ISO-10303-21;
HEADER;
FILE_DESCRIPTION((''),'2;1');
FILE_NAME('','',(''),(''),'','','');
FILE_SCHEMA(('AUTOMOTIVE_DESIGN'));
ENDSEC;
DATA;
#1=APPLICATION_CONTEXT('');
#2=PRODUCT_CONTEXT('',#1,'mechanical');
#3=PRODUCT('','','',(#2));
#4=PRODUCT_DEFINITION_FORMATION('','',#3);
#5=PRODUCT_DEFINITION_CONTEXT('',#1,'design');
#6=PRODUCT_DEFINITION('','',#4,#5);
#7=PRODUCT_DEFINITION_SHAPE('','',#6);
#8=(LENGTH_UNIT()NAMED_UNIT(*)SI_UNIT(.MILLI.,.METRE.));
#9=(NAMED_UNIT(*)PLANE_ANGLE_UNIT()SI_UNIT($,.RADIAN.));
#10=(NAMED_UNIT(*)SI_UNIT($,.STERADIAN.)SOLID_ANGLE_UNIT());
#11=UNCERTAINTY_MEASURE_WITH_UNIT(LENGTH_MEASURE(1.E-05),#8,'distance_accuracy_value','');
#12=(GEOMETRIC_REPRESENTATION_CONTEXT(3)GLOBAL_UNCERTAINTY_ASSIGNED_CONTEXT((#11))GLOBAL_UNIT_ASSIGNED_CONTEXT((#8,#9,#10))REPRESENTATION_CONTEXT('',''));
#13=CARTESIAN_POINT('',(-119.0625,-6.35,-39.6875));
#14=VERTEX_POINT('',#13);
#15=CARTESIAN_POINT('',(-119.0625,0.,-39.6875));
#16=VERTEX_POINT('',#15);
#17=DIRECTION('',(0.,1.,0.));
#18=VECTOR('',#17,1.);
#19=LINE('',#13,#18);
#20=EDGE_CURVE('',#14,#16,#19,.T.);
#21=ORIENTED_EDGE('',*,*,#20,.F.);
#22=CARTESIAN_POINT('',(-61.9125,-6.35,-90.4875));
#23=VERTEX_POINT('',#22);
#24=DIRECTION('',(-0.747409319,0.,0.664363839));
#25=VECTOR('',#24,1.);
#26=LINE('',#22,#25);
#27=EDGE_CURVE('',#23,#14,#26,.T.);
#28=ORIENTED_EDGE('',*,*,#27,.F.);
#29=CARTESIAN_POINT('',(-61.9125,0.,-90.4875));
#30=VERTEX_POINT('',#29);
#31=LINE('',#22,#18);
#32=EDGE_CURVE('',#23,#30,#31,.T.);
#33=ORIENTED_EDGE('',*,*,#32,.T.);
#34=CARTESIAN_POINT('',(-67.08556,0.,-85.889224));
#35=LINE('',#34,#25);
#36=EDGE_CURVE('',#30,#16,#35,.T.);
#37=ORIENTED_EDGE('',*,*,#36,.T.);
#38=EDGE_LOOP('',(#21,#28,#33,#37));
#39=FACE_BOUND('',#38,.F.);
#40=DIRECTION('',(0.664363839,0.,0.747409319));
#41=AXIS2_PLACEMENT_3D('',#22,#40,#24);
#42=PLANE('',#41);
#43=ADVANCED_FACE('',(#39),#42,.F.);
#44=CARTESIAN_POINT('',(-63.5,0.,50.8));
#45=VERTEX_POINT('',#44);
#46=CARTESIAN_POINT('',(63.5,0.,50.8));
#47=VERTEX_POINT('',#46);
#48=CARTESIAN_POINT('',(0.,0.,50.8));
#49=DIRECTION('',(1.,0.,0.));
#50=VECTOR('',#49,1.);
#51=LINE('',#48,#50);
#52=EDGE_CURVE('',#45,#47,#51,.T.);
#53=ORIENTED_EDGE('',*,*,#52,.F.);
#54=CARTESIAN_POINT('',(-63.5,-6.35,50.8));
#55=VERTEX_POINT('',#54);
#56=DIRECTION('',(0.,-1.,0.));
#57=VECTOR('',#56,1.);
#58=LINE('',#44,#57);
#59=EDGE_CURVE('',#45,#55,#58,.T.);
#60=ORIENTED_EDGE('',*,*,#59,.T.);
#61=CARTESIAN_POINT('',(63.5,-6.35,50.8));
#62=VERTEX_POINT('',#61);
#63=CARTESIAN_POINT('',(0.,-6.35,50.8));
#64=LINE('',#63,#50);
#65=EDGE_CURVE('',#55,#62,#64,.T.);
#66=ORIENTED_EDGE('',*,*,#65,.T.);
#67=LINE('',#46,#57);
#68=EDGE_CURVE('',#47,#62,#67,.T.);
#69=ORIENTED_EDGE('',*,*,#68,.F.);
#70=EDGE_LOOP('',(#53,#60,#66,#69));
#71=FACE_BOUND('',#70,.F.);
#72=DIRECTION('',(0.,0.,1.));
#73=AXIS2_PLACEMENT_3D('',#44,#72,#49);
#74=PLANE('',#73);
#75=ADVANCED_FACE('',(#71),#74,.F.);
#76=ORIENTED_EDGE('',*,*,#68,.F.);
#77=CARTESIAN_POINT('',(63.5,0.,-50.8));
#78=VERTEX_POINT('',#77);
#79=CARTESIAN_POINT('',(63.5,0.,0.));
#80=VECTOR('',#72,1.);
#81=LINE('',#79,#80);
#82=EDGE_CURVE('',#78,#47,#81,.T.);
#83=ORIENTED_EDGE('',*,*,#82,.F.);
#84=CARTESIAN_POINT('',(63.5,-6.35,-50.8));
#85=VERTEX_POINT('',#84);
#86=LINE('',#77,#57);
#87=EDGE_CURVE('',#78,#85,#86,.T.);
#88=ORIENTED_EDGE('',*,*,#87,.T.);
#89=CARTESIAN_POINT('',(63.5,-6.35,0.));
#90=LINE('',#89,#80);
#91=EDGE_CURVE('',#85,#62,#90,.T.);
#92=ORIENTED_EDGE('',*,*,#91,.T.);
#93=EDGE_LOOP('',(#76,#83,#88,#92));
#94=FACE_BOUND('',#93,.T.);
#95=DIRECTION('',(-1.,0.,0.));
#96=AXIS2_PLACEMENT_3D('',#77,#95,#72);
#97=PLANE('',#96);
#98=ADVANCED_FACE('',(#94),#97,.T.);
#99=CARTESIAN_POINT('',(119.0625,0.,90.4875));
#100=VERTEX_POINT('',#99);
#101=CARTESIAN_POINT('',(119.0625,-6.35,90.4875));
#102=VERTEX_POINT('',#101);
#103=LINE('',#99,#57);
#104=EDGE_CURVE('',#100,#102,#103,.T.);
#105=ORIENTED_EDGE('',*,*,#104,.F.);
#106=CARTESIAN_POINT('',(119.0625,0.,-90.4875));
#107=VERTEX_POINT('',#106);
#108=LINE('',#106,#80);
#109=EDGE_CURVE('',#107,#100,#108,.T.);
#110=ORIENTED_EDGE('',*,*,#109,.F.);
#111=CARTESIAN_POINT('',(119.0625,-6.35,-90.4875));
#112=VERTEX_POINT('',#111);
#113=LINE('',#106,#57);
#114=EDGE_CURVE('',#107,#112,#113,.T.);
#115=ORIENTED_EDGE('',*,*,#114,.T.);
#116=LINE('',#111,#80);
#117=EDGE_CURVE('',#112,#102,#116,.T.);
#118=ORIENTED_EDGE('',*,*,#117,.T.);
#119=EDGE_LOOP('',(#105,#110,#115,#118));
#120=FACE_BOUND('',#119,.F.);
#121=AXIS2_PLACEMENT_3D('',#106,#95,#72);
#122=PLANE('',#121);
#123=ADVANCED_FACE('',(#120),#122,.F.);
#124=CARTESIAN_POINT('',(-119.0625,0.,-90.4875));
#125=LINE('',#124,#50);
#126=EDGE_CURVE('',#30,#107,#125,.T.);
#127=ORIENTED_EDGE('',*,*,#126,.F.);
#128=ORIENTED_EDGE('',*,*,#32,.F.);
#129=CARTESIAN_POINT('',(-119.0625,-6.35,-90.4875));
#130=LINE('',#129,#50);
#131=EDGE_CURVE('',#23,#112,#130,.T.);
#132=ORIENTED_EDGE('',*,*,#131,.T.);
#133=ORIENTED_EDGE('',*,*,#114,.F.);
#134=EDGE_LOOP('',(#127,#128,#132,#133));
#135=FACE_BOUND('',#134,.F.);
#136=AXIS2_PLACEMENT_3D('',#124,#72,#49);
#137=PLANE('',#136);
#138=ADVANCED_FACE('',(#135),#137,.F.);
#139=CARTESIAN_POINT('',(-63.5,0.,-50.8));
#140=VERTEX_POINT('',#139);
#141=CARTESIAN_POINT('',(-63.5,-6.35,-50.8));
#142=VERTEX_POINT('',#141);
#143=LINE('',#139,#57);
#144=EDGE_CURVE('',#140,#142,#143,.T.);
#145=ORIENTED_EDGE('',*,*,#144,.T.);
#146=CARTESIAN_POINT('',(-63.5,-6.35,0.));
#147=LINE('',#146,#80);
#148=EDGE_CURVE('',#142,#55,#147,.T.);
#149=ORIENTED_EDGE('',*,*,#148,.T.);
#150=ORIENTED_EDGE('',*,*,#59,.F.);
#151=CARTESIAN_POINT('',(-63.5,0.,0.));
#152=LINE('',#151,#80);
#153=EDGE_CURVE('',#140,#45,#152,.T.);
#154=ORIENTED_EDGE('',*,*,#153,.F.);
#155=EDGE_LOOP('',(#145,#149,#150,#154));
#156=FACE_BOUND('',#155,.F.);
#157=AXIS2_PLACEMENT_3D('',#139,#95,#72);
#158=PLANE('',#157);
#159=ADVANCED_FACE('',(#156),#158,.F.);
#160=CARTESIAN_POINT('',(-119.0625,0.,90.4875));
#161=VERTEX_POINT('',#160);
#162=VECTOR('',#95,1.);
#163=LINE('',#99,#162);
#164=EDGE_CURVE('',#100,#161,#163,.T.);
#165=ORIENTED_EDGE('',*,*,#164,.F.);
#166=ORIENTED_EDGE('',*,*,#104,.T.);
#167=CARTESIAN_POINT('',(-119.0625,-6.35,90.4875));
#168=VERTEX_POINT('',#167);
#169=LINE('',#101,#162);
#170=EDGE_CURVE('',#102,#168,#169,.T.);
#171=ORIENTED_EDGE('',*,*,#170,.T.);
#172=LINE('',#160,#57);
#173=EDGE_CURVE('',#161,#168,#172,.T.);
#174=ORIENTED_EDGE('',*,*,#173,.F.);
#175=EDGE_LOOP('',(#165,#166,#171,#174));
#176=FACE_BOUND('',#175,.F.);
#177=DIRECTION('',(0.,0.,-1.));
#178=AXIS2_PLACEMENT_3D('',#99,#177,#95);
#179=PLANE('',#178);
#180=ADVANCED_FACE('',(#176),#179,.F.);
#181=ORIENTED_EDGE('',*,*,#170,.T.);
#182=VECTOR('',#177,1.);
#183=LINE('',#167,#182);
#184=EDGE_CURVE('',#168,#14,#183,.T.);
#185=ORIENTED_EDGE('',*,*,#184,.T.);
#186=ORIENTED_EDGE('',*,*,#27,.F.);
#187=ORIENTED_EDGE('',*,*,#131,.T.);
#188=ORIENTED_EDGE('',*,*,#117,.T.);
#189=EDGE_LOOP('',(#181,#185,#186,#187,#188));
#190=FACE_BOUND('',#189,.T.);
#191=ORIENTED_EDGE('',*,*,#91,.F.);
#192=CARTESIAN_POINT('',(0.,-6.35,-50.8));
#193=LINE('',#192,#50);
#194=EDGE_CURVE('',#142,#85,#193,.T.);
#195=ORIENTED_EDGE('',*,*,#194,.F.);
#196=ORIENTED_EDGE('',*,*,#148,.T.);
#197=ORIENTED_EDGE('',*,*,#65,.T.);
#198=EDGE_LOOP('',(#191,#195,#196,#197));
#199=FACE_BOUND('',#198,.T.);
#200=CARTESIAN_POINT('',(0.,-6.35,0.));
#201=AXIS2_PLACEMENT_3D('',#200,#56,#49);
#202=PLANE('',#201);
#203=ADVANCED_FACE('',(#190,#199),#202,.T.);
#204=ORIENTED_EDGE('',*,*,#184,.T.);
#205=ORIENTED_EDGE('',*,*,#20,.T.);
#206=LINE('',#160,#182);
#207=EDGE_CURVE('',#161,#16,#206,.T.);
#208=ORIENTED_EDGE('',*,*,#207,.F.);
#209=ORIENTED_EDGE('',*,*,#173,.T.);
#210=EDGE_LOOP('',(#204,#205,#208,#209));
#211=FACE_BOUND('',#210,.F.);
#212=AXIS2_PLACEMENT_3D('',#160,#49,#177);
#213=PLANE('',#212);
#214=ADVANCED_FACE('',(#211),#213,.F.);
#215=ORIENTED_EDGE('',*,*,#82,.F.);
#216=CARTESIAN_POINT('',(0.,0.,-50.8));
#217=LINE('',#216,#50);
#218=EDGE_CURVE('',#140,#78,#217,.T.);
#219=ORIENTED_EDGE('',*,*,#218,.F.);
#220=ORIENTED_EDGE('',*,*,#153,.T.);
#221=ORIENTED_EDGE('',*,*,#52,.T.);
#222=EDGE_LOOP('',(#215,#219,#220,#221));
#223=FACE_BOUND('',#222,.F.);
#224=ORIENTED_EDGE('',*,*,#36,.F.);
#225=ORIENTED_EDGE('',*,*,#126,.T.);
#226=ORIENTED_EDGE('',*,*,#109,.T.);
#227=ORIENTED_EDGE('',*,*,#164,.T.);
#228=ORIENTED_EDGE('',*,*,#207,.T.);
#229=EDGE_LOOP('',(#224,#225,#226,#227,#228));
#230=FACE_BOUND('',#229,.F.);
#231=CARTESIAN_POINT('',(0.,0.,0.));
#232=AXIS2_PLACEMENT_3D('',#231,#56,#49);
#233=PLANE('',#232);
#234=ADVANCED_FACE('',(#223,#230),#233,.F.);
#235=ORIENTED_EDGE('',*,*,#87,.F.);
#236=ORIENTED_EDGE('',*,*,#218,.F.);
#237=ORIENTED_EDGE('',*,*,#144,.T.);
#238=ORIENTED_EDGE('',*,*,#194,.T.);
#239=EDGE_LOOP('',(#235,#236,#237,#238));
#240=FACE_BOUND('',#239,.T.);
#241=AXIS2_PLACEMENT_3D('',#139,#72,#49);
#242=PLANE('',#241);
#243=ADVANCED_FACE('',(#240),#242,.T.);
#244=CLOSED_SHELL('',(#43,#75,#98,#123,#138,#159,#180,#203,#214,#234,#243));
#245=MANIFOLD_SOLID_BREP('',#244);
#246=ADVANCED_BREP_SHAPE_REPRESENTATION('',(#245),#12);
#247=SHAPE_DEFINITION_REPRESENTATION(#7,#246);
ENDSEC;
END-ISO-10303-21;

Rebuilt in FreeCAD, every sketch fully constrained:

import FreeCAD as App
import Part
import Sketcher
Q = App.Units.Quantity


def add_polygon(sketch, points):
    """Adds a closed chain of lines whose ends are joined by coincident constraints."""
    first, n = sketch.GeometryCount, len(points)
    for a, b in zip(points, points[1:] + points[:1]):
        sketch.addGeometry(Part.LineSegment(App.Vector(*a, 0), App.Vector(*b, 0)), False)
    for i in range(n):
        sketch.addConstraint(Sketcher.Constraint("Coincident", first + i, 2, first + (i + 1) % n, 1))

doc = App.newDocument("Part")
body = doc.addObject("PartDesign::Body", "Body")

sketch1 = body.newObject("Sketcher::SketchObject", "Sketch")
sketch1.AttachmentSupport = (doc.getObject("XZ_Plane"), [""])
sketch1.MapMode = "FlatFace"
add_polygon(sketch1, [(119.0625, 90.4875), (-119.0625, 90.4875), (-119.0625, -90.4875), (119.0625, -90.4875)])
add_polygon(sketch1, [(63.5, -50.8), (-63.5, -50.8), (-63.5, 50.8), (63.5, 50.8)])
sketch1.addConstraint(Sketcher.Constraint("Horizontal", 0))
sketch1.addConstraint(Sketcher.Constraint("Vertical", 1))
sketch1.addConstraint(Sketcher.Constraint("Horizontal", 2))
sketch1.addConstraint(Sketcher.Constraint("Vertical", 3))
sketch1.addConstraint(Sketcher.Constraint("Horizontal", 4))
sketch1.addConstraint(Sketcher.Constraint("Vertical", 5))
sketch1.addConstraint(Sketcher.Constraint("Horizontal", 6))
sketch1.addConstraint(Sketcher.Constraint("Vertical", 7))
sketch1.addConstraint(Sketcher.Constraint("Symmetric", 0, 2, 2, 2, -1, 1))
sketch1.addConstraint(Sketcher.Constraint("Symmetric", 4, 2, 6, 2, -1, 1))
sketch1.addConstraint(Sketcher.Constraint("DistanceX", 4, 2, 4, 1, Q("5 in")))
sketch1.addConstraint(Sketcher.Constraint("DistanceY", 5, 1, 5, 2, Q("4 in")))
sketch1.addConstraint(Sketcher.Constraint("DistanceX", 0, 2, 0, 1, Q("9.375 in")))
sketch1.addConstraint(Sketcher.Constraint("DistanceY", 1, 2, 1, 1, Q("7.125 in")))
pad1 = body.newObject("PartDesign::Pad", "Pad")
pad1.Profile = sketch1
pad1.Length = Q("0.25 in")

sketch2 = body.newObject("Sketcher::SketchObject", "Sketch001")
sketch2.AttachmentSupport = (doc.getObject("XZ_Plane"), [""])
sketch2.MapMode = "FlatFace"
sketch2.AttachmentOffset = App.Placement(App.Vector(0, 0, 0.25 * 25.4), App.Rotation())
add_polygon(sketch2, [(-119.0625, -39.6875), (-119.0625, -90.4875), (-61.9125, -90.4875)])
sketch2.addConstraint(Sketcher.Constraint("Vertical", 0))
sketch2.addConstraint(Sketcher.Constraint("Horizontal", 1))
sketch2.addConstraint(Sketcher.Constraint("DistanceY", 0, 2, 0, 1, Q("2 in")))
sketch2.addConstraint(Sketcher.Constraint("DistanceX", 1, 1, 1, 2, Q("2.25 in")))
sketch2.addConstraint(Sketcher.Constraint("DistanceX", 0, 2, -1, 1, Q("4.6875 in")))
sketch2.addConstraint(Sketcher.Constraint("DistanceY", 0, 2, -1, 1, Q("3.5625 in")))
pocket1 = body.newObject("PartDesign::Pocket", "Pocket")
pocket1.Profile = sketch2
pocket1.Length = Q("1 in")

doc.recompute()
